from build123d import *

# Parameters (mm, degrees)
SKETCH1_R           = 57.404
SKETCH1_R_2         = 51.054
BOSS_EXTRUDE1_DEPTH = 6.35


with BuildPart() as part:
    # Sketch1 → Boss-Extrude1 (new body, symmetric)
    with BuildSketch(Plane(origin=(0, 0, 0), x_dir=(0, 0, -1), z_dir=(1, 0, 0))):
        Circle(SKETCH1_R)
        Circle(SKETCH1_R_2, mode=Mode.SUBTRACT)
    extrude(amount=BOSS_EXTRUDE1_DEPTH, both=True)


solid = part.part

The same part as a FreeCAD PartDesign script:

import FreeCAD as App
import Part
import Sketcher
from FreeCAD import Vector
Q = App.Units.Quantity

doc = App.newDocument("Part")
body = doc.addObject("PartDesign::Body", "Body")

# Sketch on YZ plane
sketch1 = body.newObject("Sketcher::SketchObject", "Sketch")
sketch1.AttachmentSupport = (doc.getObject("YZ_Plane"), [""])
sketch1.MapMode = "FlatFace"
sketch1.addGeometry([
    Part.Circle(Vector(0, 0, 0), Vector(0, 0, 1), 57),
    Part.Circle(Vector(0, 0, 0), Vector(0, 0, 1), 51),
], False)
sketch1.addConstraint([
    Sketcher.Constraint("Coincident", 0, 3, -1, 1),
    Sketcher.Constraint("Coincident", 1, 3, -1, 1),
    Sketcher.Constraint("Diameter", 0, Q("4.52 in")),
    Sketcher.Constraint("Diameter", 1, Q("4.02 in")),
])
pad1 = body.newObject("PartDesign::Pad", "Pad")
pad1.Profile = sketch1
pad1.Length = Q("0.5 in")
pad1.Midplane = True

doc.recompute()
